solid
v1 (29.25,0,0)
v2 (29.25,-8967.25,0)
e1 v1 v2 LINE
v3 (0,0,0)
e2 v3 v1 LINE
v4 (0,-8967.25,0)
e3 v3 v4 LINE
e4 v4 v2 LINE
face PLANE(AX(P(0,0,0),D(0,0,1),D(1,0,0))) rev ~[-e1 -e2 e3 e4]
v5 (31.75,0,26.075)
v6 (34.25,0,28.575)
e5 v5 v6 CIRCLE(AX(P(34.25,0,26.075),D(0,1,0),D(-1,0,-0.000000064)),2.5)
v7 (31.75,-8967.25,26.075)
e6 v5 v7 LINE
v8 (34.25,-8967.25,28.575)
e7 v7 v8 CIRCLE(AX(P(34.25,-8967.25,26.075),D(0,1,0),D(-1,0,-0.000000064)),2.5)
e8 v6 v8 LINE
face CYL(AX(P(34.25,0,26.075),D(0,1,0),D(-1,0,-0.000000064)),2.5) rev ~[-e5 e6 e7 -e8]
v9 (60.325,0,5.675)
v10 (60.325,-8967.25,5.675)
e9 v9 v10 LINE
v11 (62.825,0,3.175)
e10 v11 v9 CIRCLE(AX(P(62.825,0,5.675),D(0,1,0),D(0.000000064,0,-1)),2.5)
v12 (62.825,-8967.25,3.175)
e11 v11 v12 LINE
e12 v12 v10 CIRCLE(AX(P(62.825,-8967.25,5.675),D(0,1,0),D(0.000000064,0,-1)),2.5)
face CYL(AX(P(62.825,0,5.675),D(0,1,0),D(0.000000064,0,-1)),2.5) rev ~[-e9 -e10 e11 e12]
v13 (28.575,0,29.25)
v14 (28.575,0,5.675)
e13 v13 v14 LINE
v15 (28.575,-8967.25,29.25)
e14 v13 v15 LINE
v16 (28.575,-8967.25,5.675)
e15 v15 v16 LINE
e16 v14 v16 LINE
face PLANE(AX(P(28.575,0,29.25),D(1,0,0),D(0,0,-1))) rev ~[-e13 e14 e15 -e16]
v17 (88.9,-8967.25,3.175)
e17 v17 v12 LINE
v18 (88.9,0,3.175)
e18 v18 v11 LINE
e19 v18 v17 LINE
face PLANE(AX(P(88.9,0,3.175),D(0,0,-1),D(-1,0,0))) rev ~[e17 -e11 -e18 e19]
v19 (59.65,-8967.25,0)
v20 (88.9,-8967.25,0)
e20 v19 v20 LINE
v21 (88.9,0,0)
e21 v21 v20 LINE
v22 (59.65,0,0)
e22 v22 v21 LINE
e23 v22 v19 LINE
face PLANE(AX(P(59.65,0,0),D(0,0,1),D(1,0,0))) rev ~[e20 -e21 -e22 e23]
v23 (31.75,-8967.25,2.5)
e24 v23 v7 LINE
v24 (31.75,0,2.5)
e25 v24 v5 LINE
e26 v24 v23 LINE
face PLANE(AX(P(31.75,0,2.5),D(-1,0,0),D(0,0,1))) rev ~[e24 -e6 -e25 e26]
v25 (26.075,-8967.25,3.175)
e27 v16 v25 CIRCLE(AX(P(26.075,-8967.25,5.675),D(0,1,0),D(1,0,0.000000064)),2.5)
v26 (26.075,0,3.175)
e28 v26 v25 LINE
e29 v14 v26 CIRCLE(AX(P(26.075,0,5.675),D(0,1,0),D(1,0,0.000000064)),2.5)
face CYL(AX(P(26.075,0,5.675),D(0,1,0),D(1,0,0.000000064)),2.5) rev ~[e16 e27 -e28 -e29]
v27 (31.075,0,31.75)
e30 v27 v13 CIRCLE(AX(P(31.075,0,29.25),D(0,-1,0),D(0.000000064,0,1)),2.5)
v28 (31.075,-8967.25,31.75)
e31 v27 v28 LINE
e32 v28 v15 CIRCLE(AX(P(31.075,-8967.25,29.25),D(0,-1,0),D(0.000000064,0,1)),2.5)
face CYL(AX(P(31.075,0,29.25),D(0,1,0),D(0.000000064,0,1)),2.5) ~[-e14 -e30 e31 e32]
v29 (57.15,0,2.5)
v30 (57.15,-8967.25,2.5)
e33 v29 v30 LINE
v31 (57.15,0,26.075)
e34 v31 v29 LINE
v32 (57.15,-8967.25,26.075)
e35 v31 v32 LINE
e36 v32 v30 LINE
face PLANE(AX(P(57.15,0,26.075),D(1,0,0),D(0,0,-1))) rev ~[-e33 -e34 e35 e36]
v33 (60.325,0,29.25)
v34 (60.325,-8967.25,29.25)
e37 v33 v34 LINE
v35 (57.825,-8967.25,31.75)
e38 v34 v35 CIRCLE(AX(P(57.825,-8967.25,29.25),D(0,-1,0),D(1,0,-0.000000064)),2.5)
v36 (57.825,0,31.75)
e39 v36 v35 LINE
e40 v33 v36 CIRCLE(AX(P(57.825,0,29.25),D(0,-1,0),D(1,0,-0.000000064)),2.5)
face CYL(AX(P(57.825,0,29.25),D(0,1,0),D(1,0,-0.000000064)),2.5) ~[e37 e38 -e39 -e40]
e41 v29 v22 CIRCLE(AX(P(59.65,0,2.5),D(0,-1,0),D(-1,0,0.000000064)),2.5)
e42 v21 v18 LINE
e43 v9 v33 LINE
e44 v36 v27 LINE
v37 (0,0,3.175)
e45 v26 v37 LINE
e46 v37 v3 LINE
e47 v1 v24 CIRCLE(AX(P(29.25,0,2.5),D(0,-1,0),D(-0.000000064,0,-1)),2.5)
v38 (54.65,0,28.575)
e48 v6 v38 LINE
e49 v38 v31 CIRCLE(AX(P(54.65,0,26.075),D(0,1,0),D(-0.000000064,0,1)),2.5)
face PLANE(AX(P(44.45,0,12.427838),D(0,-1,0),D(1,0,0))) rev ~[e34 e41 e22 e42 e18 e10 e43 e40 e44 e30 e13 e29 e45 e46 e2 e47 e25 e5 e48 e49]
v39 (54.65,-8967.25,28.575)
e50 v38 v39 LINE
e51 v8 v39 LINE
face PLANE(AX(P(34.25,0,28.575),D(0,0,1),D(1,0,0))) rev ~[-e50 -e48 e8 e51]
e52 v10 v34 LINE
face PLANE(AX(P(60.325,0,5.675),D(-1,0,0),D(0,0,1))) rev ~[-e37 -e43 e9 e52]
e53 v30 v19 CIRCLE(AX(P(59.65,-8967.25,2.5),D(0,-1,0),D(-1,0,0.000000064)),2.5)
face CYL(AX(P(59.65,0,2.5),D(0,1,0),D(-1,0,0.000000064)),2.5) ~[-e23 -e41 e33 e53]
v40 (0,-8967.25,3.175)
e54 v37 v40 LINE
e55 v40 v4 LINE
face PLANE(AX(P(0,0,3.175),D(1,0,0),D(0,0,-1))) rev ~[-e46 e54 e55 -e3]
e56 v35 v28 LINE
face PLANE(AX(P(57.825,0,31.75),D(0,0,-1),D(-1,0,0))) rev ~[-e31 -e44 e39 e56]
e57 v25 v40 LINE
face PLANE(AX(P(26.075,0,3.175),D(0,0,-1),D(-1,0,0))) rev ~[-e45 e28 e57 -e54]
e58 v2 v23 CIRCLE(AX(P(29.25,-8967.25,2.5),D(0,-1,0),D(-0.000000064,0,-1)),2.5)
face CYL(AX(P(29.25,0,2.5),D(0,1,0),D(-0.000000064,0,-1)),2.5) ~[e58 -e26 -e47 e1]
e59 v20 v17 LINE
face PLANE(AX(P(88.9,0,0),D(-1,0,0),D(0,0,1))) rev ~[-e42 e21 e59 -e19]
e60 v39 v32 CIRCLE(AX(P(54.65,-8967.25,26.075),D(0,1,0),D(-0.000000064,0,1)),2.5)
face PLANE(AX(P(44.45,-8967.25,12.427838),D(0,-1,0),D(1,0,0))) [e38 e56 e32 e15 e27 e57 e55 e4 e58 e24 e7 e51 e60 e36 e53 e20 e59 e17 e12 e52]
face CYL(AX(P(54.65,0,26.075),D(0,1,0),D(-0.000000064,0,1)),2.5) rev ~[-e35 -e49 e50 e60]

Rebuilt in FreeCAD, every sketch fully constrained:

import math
import FreeCAD as App
import Part
import Sketcher

doc = App.newDocument("Part")
params = doc.addObject("Spreadsheet::Sheet", "Params")
for row, (alias, value) in enumerate([
    ("sketch1_radius", "2.5 mm"),
    ("sketch1_width", "20.4 mm"),
    ("sketch1_width2", "29.25 mm"),
    ("sketch1_width3", "26.75 mm"),
    ("pad1_length", "8967.25 mm"),
], start=1):
    params.set(f"A{row}", alias)
    params.set(f"B{row}", "=" + value)
    params.setAlias(f"B{row}", alias)

body = doc.addObject("PartDesign::Body", "Body")

# Sketch on XZ plane
sketch1 = doc.addObject("Sketcher::SketchObject", "Sketch")
body.addObject(sketch1)
sketch1.AttachmentSupport = (doc.XZ_Plane, [""])
sketch1.MapMode = "FlatFace"
sketch1.addGeometry(Part.LineSegment(App.Vector(0, 3.2, 0), App.Vector(0, 0, 0)), False)
sketch1.addGeometry(Part.LineSegment(App.Vector(0, 0, 0), App.Vector(29.2, 0, 0)), False)
sketch1.addGeometry(Part.ArcOfCircle(Part.Circle(App.Vector(29.3, 2.5, 0), App.Vector(0, 0, 1), 2.5), math.radians(-90), math.radians(0)), False)
sketch1.addGeometry(Part.LineSegment(App.Vector(31.8, 2.5, 0), App.Vector(31.8, 26.1, 0)), False)
sketch1.addGeometry(Part.ArcOfCircle(Part.Circle(App.Vector(34.2, 26.1, 0), App.Vector(0, 0, 1), 2.5), math.radians(90), math.radians(180)), False)
sketch1.addGeometry(Part.LineSegment(App.Vector(34.2, 28.6, 0), App.Vector(54.6, 28.6, 0)), False)
sketch1.addGeometry(Part.ArcOfCircle(Part.Circle(App.Vector(54.7, 26.1, 0), App.Vector(0, 0, 1), 2.5), math.radians(0), math.radians(90)), False)
sketch1.addGeometry(Part.LineSegment(App.Vector(57.1, 26.1, 0), App.Vector(57.1, 2.5, 0)), False)
sketch1.addGeometry(Part.ArcOfCircle(Part.Circle(App.Vector(59.6, 2.5, 0), App.Vector(0, 0, 1), 2.5), math.radians(180), math.radians(270)), False)
sketch1.addGeometry(Part.LineSegment(App.Vector(59.6, 0, 0), App.Vector(88.9, 0, 0)), False)
sketch1.addGeometry(Part.LineSegment(App.Vector(88.9, 0, 0), App.Vector(88.9, 3.2, 0)), False)
sketch1.addGeometry(Part.LineSegment(App.Vector(88.9, 3.2, 0), App.Vector(62.8, 3.2, 0)), False)
sketch1.addGeometry(Part.ArcOfCircle(Part.Circle(App.Vector(62.8, 5.7, 0), App.Vector(0, 0, 1), 2.5), math.radians(180), math.radians(270)), False)
sketch1.addGeometry(Part.LineSegment(App.Vector(60.3, 5.7, 0), App.Vector(60.3, 29.2, 0)), False)
sketch1.addGeometry(Part.ArcOfCircle(Part.Circle(App.Vector(57.8, 29.3, 0), App.Vector(0, 0, 1), 2.5), math.radians(0), math.radians(90)), False)
sketch1.addGeometry(Part.LineSegment(App.Vector(57.8, 31.8, 0), App.Vector(31.1, 31.8, 0)), False)
sketch1.addGeometry(Part.ArcOfCircle(Part.Circle(App.Vector(31.1, 29.3, 0), App.Vector(0, 0, 1), 2.5), math.radians(90), math.radians(180)), False)
sketch1.addGeometry(Part.LineSegment(App.Vector(28.6, 29.2, 0), App.Vector(28.6, 5.7, 0)), False)
sketch1.addGeometry(Part.ArcOfCircle(Part.Circle(App.Vector(26.1, 5.7, 0), App.Vector(0, 0, 1), 2.5), math.radians(-90), math.radians(0)), False)
sketch1.addGeometry(Part.LineSegment(App.Vector(26.1, 3.2, 0), App.Vector(0, 3.2, 0)), False)
sketch1.addConstraint(Sketcher.Constraint("Coincident", 0, 2, 1, 1))
sketch1.addConstraint(Sketcher.Constraint("Tangent", 1, 2, 2, 1))
sketch1.addConstraint(Sketcher.Constraint("Tangent", 2, 2, 3, 1))
sketch1.addConstraint(Sketcher.Constraint("Tangent", 3, 2, 4, 2))
sketch1.addConstraint(Sketcher.Constraint("Tangent", 4, 1, 5, 1))
sketch1.addConstraint(Sketcher.Constraint("Tangent", 5, 2, 6, 2))
sketch1.addConstraint(Sketcher.Constraint("Tangent", 6, 1, 7, 1))
sketch1.addConstraint(Sketcher.Constraint("Tangent", 7, 2, 8, 1))
sketch1.addConstraint(Sketcher.Constraint("Tangent", 8, 2, 9, 1))
sketch1.addConstraint(Sketcher.Constraint("Coincident", 9, 2, 10, 1))
sketch1.addConstraint(Sketcher.Constraint("Coincident", 10, 2, 11, 1))
sketch1.addConstraint(Sketcher.Constraint("Tangent", 11, 2, 12, 2))
sketch1.addConstraint(Sketcher.Constraint("Tangent", 12, 1, 13, 1))
sketch1.addConstraint(Sketcher.Constraint("Tangent", 13, 2, 14, 1))
sketch1.addConstraint(Sketcher.Constraint("Tangent", 14, 2, 15, 1))
sketch1.addConstraint(Sketcher.Constraint("Tangent", 15, 2, 16, 1))
sketch1.addConstraint(Sketcher.Constraint("Tangent", 16, 2, 17, 1))
sketch1.addConstraint(Sketcher.Constraint("Tangent", 17, 2, 18, 2))
sketch1.addConstraint(Sketcher.Constraint("Tangent", 18, 1, 19, 1))
sketch1.addConstraint(Sketcher.Constraint("Coincident", 19, 2, 0, 1))
sketch1.addConstraint(Sketcher.Constraint("Vertical", 0))
sketch1.addConstraint(Sketcher.Constraint("Horizontal", 1))
sketch1.addConstraint(Sketcher.Constraint("Vertical", 3))
sketch1.addConstraint(Sketcher.Constraint("Horizontal", 5))
sketch1.addConstraint(Sketcher.Constraint("Vertical", 7))
sketch1.addConstraint(Sketcher.Constraint("Horizontal", 9))
sketch1.addConstraint(Sketcher.Constraint("Vertical", 10))
sketch1.addConstraint(Sketcher.Constraint("Horizontal", 11))
sketch1.addConstraint(Sketcher.Constraint("Vertical", 13))
sketch1.addConstraint(Sketcher.Constraint("Horizontal", 15))
sketch1.addConstraint(Sketcher.Constraint("Vertical", 17))
sketch1.addConstraint(Sketcher.Constraint("Horizontal", 19))
sketch1.addConstraint(Sketcher.Constraint("Coincident", 0, 2, -1, 1))
sketch1.addConstraint(Sketcher.Constraint("Equal", 2, 4))
sketch1.addConstraint(Sketcher.Constraint("Equal", 4, 6))
sketch1.addConstraint(Sketcher.Constraint("Equal", 6, 8))
sketch1.addConstraint(Sketcher.Constraint("Equal", 8, 12))
sketch1.addConstraint(Sketcher.Constraint("Equal", 12, 14))
sketch1.addConstraint(Sketcher.Constraint("Equal", 14, 16))
sketch1.addConstraint(Sketcher.Constraint("Equal", 16, 18))
sketch1.addConstraint(Sketcher.Constraint("PointOnObject", 8, 2, -1))
sketch1.addConstraint(Sketcher.Constraint("Horizontal", 12, 3, 18, 3))
sketch1.addConstraint(Sketcher.Constraint("Equal", 1, 9))
sketch1.addConstraint(Sketcher.Constraint("Equal", 11, 19))
sketch1.addConstraint(Sketcher.Constraint("Equal", 7, 13))
sketch1.addConstraint(Sketcher.Constraint("Radius", 2, 2.5))
sketch1.addConstraint(Sketcher.Constraint("DistanceX", 5, 1, 5, 2, 20.4))
sketch1.addConstraint(Sketcher.Constraint("DistanceX", 1, 1, 1, 2, 29.25))
sketch1.addConstraint(Sketcher.Constraint("DistanceX", 15, 2, 15, 1, 26.75))
sketch1.addConstraint(Sketcher.Constraint("DistanceY", 12, 3, 6, 3, 20.4))
sketch1.addConstraint(Sketcher.Constraint("DistanceY", 0, 2, 0, 1, 3.175))
sketch1.setExpression("Constraints[45]", "Params.sketch1_radius")
sketch1.setExpression("Constraints[46]", "Params.sketch1_width")
sketch1.setExpression("Constraints[47]", "Params.sketch1_width2")
sketch1.setExpression("Constraints[48]", "Params.sketch1_width3")
pad1 = doc.addObject("PartDesign::Pad", "Pad")
body.addObject(pad1)
pad1.Profile = sketch1
pad1.setExpression("Length", "Params.pad1_length")

doc.recompute()
